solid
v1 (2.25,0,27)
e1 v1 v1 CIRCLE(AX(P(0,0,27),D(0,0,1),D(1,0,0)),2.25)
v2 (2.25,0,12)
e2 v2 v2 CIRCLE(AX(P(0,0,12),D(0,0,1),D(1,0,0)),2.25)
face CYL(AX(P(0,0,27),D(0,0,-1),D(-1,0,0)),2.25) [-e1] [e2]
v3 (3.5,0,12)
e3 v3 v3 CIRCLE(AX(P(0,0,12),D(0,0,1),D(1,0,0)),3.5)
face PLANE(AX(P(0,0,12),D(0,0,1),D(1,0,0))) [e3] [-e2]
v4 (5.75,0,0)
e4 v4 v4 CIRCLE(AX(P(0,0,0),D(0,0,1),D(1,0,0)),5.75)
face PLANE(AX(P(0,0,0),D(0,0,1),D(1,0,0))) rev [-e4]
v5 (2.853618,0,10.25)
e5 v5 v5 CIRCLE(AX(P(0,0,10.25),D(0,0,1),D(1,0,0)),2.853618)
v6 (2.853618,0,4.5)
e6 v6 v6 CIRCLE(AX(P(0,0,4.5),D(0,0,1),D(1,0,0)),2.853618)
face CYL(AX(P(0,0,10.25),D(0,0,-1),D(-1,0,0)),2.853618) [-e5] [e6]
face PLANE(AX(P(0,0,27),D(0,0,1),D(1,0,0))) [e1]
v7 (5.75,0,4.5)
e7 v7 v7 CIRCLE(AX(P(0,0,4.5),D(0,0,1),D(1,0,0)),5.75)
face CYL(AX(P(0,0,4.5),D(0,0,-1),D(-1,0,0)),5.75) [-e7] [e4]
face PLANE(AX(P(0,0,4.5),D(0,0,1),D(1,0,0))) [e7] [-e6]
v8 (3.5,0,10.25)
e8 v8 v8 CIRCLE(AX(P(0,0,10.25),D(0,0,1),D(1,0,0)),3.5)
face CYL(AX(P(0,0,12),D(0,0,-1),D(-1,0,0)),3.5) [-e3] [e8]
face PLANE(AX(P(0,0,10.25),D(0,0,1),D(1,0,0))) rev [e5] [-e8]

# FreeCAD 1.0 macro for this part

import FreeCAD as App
import Part
import Sketcher
from FreeCAD import Vector

doc = App.newDocument("Part")
body = doc.addObject("PartDesign::Body", "Body")

# Sketch on XY plane
sketch1 = doc.addObject("Sketcher::SketchObject", "Sketch")
body.addObject(sketch1)
sketch1.AttachmentSupport = (doc.XY_Plane, [""])
sketch1.MapMode = "FlatFace"
sketch1.addGeometry(Part.Circle(Vector(0, 0, 0), Vector(0, 0, 1), 6), False)
sketch1.addConstraint(Sketcher.Constraint("Coincident", 0, 3, -1, 1))
sketch1.addConstraint(Sketcher.Constraint("Diameter", 0, 11.5))
pad1 = doc.addObject("PartDesign::Pad", "Pad")
body.addObject(pad1)
pad1.Profile = sketch1
pad1.Length = 4.5

# Sketch on XY plane
sketch2 = doc.addObject("Sketcher::SketchObject", "Sketch001")
body.addObject(sketch2)
sketch2.AttachmentSupport = (doc.XY_Plane, [""])
sketch2.MapMode = "FlatFace"
sketch2.AttachmentOffset = App.Placement(Vector(0, 0, 4.5), App.Rotation())
sketch2.addGeometry(Part.Circle(Vector(0, 0, 0), Vector(0, 0, 1), 2.9), False)
sketch2.addConstraint(Sketcher.Constraint("Coincident", 0, 3, -1, 1))
sketch2.addConstraint(Sketcher.Constraint("Diameter", 0, 5.707235))
pad2 = doc.addObject("PartDesign::Pad", "Pad001")
body.addObject(pad2)
pad2.Profile = sketch2
pad2.Length = 5.75

# Sketch on XY plane
sketch3 = doc.addObject("Sketcher::SketchObject", "Sketch002")
body.addObject(sketch3)
sketch3.AttachmentSupport = (doc.XY_Plane, [""])
sketch3.MapMode = "FlatFace"
sketch3.AttachmentOffset = App.Placement(Vector(0, 0, 10.25), App.Rotation())
sketch3.addGeometry(Part.Circle(Vector(0, 0, 0), Vector(0, 0, 1), 3.5), False)
sketch3.addConstraint(Sketcher.Constraint("Coincident", 0, 3, -1, 1))
sketch3.addConstraint(Sketcher.Constraint("Diameter", 0, 7.0))
pad3 = doc.addObject("PartDesign::Pad", "Pad002")
body.addObject(pad3)
pad3.Profile = sketch3
pad3.Length = 1.75

# Sketch on XY plane
sketch4 = doc.addObject("Sketcher::SketchObject", "Sketch003")
body.addObject(sketch4)
sketch4.AttachmentSupport = (doc.XY_Plane, [""])
sketch4.MapMode = "FlatFace"
sketch4.AttachmentOffset = App.Placement(Vector(0, 0, 12), App.Rotation())
sketch4.addGeometry(Part.Circle(Vector(0, 0, 0), Vector(0, 0, 1), 2.2), False)
sketch4.addConstraint(Sketcher.Constraint("Coincident", 0, 3, -1, 1))
sketch4.addConstraint(Sketcher.Constraint("Diameter", 0, 4.5))
pad4 = doc.addObject("PartDesign::Pad", "Pad003")
body.addObject(pad4)
pad4.Profile = sketch4
pad4.Length = 15

doc.recompute()
